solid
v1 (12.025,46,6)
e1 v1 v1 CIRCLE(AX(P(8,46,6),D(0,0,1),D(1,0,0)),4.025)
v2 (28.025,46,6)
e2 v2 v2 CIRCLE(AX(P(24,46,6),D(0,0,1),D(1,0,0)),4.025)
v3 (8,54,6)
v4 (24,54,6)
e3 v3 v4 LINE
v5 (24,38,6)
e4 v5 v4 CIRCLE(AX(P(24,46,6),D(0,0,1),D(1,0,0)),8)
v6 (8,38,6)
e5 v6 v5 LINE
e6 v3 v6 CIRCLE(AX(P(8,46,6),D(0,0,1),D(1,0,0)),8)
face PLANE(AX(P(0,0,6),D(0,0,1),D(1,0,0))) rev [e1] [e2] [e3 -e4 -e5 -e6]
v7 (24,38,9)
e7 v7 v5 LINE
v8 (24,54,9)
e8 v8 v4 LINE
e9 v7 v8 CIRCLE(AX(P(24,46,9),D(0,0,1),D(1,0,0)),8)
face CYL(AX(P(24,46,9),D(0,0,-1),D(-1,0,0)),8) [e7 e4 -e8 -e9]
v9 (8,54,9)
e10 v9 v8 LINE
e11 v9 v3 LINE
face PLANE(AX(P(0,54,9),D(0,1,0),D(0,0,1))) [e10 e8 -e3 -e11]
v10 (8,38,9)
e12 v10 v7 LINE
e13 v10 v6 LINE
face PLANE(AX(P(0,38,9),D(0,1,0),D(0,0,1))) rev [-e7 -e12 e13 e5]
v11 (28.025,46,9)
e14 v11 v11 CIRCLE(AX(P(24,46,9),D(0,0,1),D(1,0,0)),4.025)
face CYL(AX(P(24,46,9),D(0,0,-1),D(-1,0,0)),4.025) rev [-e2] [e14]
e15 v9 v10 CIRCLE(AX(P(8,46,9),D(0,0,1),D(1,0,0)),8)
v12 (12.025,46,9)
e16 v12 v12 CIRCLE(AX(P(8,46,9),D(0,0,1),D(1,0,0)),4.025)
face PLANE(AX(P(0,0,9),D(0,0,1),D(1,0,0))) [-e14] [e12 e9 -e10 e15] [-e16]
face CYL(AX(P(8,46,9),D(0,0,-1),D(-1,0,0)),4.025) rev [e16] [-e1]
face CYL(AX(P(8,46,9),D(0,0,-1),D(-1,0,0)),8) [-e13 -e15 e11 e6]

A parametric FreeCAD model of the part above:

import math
import FreeCAD as App
import Part
import Sketcher
Q = App.Units.Quantity

doc = App.newDocument("Part")
body = doc.addObject("PartDesign::Body", "Body")

# Sketch on XY plane
sketch1 = body.newObject("Sketcher::SketchObject", "Sketch")
sketch1.AttachmentSupport = (doc.getObject("XY_Plane"), [""])
sketch1.MapMode = "FlatFace"
sketch1.AttachmentOffset = App.Placement(App.Vector(0, 0, 6), App.Rotation())
sketch1.addGeometry([
    Part.LineSegment(App.Vector(8, 38, 0), App.Vector(24, 38, 0)),  # 0
    Part.ArcOfCircle(Part.Circle(App.Vector(24, 46, 0), App.Vector(0, 0, 1), 8), math.radians(-90), math.radians(90)),  # 1
    Part.LineSegment(App.Vector(24, 54, 0), App.Vector(8, 54, 0)),  # 2
    Part.ArcOfCircle(Part.Circle(App.Vector(8, 46, 0), App.Vector(0, 0, 1), 8), math.radians(90), math.radians(270)),  # 3
    Part.Circle(App.Vector(8, 46, 0), App.Vector(0, 0, 1), 4),  # 4
    Part.Circle(App.Vector(24, 46, 0), App.Vector(0, 0, 1), 4),  # 5
], False)
sketch1.addConstraint([
    Sketcher.Constraint("Tangent", 0, 2, 1, 1),
    Sketcher.Constraint("Tangent", 1, 2, 2, 1),
    Sketcher.Constraint("Tangent", 2, 2, 3, 1),
    Sketcher.Constraint("Tangent", 3, 2, 0, 1),
    Sketcher.Constraint("Horizontal", 0),
    Sketcher.Constraint("Horizontal", 2),
    Sketcher.Constraint("Coincident", 4, 3, 3, 3),
    Sketcher.Constraint("Coincident", 5, 3, 1, 3),
    Sketcher.Constraint("Equal", 4, 5),
    Sketcher.Constraint("Radius", 1, Q("8 mm")),
    Sketcher.Constraint("Diameter", 4, Q("8.05 mm")),
    Sketcher.Constraint("DistanceX", 0, 1, 0, 2, Q("16 mm")),
    Sketcher.Constraint("DistanceX", -1, 1, 1, 3, Q("24 mm")),
    Sketcher.Constraint("DistanceY", -1, 1, 1, 3, Q("46 mm")),
])
pad1 = body.newObject("PartDesign::Pad", "Pad")
pad1.Profile = sketch1
pad1.Length = 3

doc.recompute()
